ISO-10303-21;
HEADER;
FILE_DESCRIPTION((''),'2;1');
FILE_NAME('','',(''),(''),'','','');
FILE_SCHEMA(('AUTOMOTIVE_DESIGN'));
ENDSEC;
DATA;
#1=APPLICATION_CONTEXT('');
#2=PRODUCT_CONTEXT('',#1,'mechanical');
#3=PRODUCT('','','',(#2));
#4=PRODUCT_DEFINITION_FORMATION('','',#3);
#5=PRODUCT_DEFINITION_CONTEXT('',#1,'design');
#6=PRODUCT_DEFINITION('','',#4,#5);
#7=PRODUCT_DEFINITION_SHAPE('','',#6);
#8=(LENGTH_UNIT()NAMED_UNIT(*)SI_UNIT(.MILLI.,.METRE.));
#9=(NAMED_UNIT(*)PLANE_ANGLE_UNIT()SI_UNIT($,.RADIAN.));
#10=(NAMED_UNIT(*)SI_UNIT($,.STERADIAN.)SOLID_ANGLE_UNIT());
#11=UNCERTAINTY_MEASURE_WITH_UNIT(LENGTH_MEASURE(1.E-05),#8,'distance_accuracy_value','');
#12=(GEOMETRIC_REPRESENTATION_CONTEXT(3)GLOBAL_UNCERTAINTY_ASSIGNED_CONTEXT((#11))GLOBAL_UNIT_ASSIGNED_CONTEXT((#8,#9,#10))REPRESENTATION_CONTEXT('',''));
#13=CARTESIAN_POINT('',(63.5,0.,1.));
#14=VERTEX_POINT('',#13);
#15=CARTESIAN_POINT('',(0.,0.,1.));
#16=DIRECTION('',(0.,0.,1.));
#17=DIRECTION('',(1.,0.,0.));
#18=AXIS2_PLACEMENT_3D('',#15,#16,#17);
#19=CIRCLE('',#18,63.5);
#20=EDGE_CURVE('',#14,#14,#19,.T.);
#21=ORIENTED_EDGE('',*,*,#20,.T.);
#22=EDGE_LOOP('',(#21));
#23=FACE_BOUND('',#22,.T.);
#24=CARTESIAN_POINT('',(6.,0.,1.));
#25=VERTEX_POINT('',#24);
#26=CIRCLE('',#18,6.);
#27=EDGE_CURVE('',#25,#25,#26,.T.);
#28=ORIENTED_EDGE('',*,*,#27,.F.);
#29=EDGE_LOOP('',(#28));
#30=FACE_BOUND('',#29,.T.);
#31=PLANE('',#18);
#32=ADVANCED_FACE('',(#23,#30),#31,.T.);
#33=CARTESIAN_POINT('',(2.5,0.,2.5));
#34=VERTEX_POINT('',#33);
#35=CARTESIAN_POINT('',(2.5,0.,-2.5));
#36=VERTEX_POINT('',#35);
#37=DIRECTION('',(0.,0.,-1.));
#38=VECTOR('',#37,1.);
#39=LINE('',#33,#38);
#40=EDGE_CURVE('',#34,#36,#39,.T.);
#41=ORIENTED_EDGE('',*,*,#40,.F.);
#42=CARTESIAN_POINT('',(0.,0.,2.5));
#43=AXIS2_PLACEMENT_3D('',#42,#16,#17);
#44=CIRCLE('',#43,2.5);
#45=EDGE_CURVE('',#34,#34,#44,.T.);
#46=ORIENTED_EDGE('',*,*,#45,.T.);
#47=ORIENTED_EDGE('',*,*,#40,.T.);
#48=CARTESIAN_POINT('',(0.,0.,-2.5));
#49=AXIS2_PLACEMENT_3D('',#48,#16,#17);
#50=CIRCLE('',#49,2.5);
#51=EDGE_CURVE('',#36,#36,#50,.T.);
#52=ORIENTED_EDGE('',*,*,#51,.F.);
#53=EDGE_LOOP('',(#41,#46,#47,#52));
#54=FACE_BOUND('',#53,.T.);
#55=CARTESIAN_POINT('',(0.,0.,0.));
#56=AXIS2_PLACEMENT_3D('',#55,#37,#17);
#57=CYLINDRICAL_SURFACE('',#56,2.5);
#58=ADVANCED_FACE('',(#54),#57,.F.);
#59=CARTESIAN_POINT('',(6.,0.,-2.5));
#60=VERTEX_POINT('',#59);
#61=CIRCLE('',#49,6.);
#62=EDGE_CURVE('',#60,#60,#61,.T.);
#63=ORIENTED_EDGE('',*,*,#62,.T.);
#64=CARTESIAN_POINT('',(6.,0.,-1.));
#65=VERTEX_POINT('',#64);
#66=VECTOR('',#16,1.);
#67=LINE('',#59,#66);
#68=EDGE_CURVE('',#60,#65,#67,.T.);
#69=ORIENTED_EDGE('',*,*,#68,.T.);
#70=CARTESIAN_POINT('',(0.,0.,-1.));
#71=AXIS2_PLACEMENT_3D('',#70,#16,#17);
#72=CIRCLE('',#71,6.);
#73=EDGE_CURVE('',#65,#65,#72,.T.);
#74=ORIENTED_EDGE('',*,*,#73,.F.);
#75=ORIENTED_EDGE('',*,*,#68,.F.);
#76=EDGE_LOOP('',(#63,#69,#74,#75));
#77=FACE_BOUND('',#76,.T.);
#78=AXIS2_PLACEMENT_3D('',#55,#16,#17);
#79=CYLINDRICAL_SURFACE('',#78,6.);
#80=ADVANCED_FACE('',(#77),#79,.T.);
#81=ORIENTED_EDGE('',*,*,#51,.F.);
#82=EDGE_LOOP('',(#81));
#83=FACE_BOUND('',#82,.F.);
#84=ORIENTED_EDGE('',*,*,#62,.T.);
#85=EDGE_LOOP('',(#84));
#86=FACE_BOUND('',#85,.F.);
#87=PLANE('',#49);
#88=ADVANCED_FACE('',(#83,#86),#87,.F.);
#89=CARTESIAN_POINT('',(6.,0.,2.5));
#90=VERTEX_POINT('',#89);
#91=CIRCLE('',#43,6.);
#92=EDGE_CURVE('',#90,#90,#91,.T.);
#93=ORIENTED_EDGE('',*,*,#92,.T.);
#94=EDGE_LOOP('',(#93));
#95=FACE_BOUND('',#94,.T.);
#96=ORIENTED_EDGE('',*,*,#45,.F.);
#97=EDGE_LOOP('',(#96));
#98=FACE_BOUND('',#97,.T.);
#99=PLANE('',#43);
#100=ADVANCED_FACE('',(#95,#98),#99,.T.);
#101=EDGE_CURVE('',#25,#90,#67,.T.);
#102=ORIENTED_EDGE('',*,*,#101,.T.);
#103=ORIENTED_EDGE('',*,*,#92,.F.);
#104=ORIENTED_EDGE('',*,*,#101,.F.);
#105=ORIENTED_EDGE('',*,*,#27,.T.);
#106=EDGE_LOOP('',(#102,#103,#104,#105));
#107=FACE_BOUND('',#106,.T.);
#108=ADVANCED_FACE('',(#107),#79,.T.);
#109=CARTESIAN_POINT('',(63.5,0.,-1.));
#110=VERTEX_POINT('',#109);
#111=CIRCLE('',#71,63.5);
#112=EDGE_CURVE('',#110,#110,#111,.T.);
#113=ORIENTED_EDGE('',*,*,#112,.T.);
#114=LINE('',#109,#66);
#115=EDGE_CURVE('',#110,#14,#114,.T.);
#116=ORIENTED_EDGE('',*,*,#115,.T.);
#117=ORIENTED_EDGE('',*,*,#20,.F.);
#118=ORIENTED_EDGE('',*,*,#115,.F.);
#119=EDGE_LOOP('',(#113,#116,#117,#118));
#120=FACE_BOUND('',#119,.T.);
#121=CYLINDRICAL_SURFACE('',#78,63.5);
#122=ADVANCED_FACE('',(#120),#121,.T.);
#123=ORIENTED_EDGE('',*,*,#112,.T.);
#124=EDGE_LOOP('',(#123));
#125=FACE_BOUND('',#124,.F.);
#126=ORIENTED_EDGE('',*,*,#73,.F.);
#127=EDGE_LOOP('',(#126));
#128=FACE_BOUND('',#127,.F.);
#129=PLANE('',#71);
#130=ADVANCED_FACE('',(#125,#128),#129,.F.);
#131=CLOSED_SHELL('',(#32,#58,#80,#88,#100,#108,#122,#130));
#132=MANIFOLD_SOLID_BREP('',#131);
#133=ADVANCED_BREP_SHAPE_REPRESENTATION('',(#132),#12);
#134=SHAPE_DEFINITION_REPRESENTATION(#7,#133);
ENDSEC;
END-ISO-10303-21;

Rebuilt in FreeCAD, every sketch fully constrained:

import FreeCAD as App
import Part
import Sketcher
from FreeCAD import Vector

doc = App.newDocument("Part")
body = doc.addObject("PartDesign::Body", "Body")

# Sketch on XY plane
sketch1 = body.newObject("Sketcher::SketchObject", "Sketch")
sketch1.AttachmentSupport = (doc.getObject("XY_Plane"), [""])
sketch1.MapMode = "FlatFace"
sketch1.addGeometry(Part.Circle(Vector(0, 0, 0), Vector(0, 0, 1), 6), False)
sketch1.addGeometry(Part.Circle(Vector(0, 0, 0), Vector(0, 0, 1), 2.5), False)
sketch1.addConstraint(Sketcher.Constraint("Coincident", 0, 3, -1, 1))
sketch1.addConstraint(Sketcher.Constraint("Coincident", 1, 3, -1, 1))
sketch1.addConstraint(Sketcher.Constraint("Diameter", 0, 12.0))
sketch1.addConstraint(Sketcher.Constraint("Diameter", 1, 5.0))
pad1 = body.newObject("PartDesign::Pad", "Pad")
pad1.Profile = sketch1
pad1.Length = 5
pad1.Midplane = True

# Sketch on XY plane
sketch2 = body.newObject("Sketcher::SketchObject", "Sketch001")
sketch2.AttachmentSupport = (doc.getObject("XY_Plane"), [""])
sketch2.MapMode = "FlatFace"
sketch2.addGeometry(Part.Circle(Vector(0, 0, 0), Vector(0, 0, 1), 63.5), False)
sketch2.addGeometry(Part.Circle(Vector(0, 0, 0), Vector(0, 0, 1), 5), False)
sketch2.addConstraint(Sketcher.Constraint("Coincident", 0, 3, -1, 1))
sketch2.addConstraint(Sketcher.Constraint("Coincident", 1, 3, -1, 1))
sketch2.addConstraint(Sketcher.Constraint("Diameter", 0, 127.0))
sketch2.addConstraint(Sketcher.Constraint("Diameter", 1, 10.0))
pad2 = body.newObject("PartDesign::Pad", "Pad001")
pad2.Profile = sketch2
pad2.Length = 2
pad2.Midplane = True

doc.recompute()
